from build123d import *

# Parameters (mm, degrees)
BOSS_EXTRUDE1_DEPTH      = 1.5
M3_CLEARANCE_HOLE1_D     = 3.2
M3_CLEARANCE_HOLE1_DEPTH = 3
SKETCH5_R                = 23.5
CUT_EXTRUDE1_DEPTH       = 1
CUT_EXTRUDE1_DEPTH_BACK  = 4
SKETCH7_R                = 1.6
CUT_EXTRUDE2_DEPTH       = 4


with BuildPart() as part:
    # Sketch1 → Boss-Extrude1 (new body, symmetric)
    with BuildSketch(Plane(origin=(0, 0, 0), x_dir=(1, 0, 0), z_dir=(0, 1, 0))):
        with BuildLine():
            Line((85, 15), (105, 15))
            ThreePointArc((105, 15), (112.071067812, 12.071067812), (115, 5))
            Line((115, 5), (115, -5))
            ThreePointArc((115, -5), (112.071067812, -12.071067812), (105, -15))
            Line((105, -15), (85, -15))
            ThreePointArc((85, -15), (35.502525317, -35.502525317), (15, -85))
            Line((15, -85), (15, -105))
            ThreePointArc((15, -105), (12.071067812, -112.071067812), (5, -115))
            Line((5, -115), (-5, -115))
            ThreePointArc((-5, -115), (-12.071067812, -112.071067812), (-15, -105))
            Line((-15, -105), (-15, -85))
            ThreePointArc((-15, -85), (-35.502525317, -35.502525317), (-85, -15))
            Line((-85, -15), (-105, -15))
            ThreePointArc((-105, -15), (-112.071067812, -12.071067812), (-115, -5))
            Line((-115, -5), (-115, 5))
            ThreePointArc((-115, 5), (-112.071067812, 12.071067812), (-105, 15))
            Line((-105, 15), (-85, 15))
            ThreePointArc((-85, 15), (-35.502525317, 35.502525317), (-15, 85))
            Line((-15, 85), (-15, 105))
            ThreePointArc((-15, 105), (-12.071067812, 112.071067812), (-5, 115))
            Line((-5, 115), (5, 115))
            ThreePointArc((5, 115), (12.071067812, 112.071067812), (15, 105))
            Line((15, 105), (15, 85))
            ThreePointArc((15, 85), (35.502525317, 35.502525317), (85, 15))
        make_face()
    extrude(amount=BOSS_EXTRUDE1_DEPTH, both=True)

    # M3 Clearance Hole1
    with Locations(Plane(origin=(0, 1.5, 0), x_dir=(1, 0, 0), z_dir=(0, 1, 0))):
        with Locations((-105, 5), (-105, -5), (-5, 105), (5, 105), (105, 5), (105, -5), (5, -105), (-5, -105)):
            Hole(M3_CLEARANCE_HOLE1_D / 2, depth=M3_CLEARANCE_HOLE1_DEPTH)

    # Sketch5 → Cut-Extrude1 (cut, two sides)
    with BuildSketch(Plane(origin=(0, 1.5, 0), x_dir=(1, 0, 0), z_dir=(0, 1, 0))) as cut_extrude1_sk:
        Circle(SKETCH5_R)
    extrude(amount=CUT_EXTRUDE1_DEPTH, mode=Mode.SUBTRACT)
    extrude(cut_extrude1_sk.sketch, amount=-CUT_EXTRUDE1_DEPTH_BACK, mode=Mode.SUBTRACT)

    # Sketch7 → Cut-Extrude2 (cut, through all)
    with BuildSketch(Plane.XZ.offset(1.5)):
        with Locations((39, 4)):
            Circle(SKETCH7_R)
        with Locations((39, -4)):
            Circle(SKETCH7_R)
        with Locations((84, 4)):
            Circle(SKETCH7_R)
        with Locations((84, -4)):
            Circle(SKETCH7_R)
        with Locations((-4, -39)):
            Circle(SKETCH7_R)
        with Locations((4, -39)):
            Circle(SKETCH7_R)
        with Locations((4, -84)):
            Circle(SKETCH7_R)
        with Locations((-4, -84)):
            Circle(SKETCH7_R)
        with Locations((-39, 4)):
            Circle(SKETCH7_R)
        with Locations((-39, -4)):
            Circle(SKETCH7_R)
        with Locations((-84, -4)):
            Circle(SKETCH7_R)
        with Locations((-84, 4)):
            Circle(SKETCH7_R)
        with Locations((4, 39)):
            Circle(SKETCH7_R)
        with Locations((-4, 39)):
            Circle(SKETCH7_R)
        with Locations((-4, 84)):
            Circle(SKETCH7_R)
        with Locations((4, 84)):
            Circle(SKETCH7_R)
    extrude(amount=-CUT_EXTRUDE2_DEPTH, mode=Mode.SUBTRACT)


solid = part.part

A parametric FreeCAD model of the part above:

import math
import FreeCAD as App
import Part
import Sketcher
Q = App.Units.Quantity

doc = App.newDocument("Part")
params = doc.addObject("Spreadsheet::Sheet", "Params")
for row, (alias, value) in enumerate([
    ("sketch1_radius", "70 mm"),
    ("sketch1_radius2", "10 mm"),
    ("sketch1_width", "20 mm"),
    ("sketch1_width2", "10 mm"),
    ("pad1_length", "3 mm"),
    ("sketch2_diameter", "3.2 mm"),
    ("hole_diameter", "3.2 mm"),
    ("hole_depth", "3 mm"),
    ("sketch3_diameter", "47 mm"),
    ("sketch4_diameter", "3.2 mm"),
], start=1):
    params.set(f"A{row}", alias)
    params.set(f"B{row}", "=" + value)
    params.setAlias(f"B{row}", alias)

body = doc.addObject("PartDesign::Body", "Body")

# Sketch on XZ plane
sketch1 = body.newObject("Sketcher::SketchObject", "Sketch")
sketch1.AttachmentSupport = (doc.getObject("XZ_Plane"), [""])
sketch1.MapMode = "FlatFace"
sketch1.addGeometry([
    Part.LineSegment(App.Vector(105, -15, 0), App.Vector(85, -15, 0)),  # 0
    Part.ArcOfCircle(Part.Circle(App.Vector(85, -85, 0), App.Vector(0, 0, 1), 70), math.radians(90), math.radians(180)),  # 1
    Part.LineSegment(App.Vector(15, -85, 0), App.Vector(15, -105, 0)),  # 2
    Part.ArcOfCircle(Part.Circle(App.Vector(5, -105, 0), App.Vector(0, 0, 1), 10), math.radians(-90), math.radians(0)),  # 3
    Part.LineSegment(App.Vector(5, -115, 0), App.Vector(-5, -115, 0)),  # 4
    Part.ArcOfCircle(Part.Circle(App.Vector(-5, -105, 0), App.Vector(0, 0, 1), 10), math.radians(180), math.radians(270)),  # 5
    Part.LineSegment(App.Vector(-15, -105, 0), App.Vector(-15, -85, 0)),  # 6
    Part.ArcOfCircle(Part.Circle(App.Vector(-85, -85, 0), App.Vector(0, 0, 1), 70), math.radians(0), math.radians(90)),  # 7
    Part.LineSegment(App.Vector(-85, -15, 0), App.Vector(-105, -15, 0)),  # 8
    Part.ArcOfCircle(Part.Circle(App.Vector(-105, -5, 0), App.Vector(0, 0, 1), 10), math.radians(180), math.radians(270)),  # 9
    Part.LineSegment(App.Vector(-115, -5, 0), App.Vector(-115, 5, 0)),  # 10
    Part.ArcOfCircle(Part.Circle(App.Vector(-105, 5, 0), App.Vector(0, 0, 1), 10), math.radians(90), math.radians(180)),  # 11
    Part.LineSegment(App.Vector(-105, 15, 0), App.Vector(-85, 15, 0)),  # 12
    Part.ArcOfCircle(Part.Circle(App.Vector(-85, 85, 0), App.Vector(0, 0, 1), 70), math.radians(-90), math.radians(0)),  # 13
    Part.LineSegment(App.Vector(-15, 85, 0), App.Vector(-15, 105, 0)),  # 14
    Part.ArcOfCircle(Part.Circle(App.Vector(-5, 105, 0), App.Vector(0, 0, 1), 10), math.radians(90), math.radians(180)),  # 15
    Part.LineSegment(App.Vector(-5, 115, 0), App.Vector(5, 115, 0)),  # 16
    Part.ArcOfCircle(Part.Circle(App.Vector(5, 105, 0), App.Vector(0, 0, 1), 10), math.radians(0), math.radians(90)),  # 17
    Part.LineSegment(App.Vector(15, 105, 0), App.Vector(15, 85, 0)),  # 18
    Part.ArcOfCircle(Part.Circle(App.Vector(85, 85, 0), App.Vector(0, 0, 1), 70), math.radians(180), math.radians(270)),  # 19
    Part.LineSegment(App.Vector(85, 15, 0), App.Vector(105, 15, 0)),  # 20
    Part.ArcOfCircle(Part.Circle(App.Vector(105, 5, 0), App.Vector(0, 0, 1), 10), math.radians(0), math.radians(90)),  # 21
    Part.LineSegment(App.Vector(115, 5, 0), App.Vector(115, -5, 0)),  # 22
    Part.ArcOfCircle(Part.Circle(App.Vector(105, -5, 0), App.Vector(0, 0, 1), 10), math.radians(-90), math.radians(0)),  # 23
], False)
sketch1.addConstraint([
    Sketcher.Constraint("Tangent", 0, 2, 1, 1),
    Sketcher.Constraint("Tangent", 1, 2, 2, 1),
    Sketcher.Constraint("Tangent", 2, 2, 3, 2),
    Sketcher.Constraint("Tangent", 3, 1, 4, 1),
    Sketcher.Constraint("Tangent", 4, 2, 5, 2),
    Sketcher.Constraint("Tangent", 5, 1, 6, 1),
    Sketcher.Constraint("Tangent", 6, 2, 7, 1),
    Sketcher.Constraint("Tangent", 7, 2, 8, 1),
    Sketcher.Constraint("Tangent", 8, 2, 9, 2),
    Sketcher.Constraint("Tangent", 9, 1, 10, 1),
    Sketcher.Constraint("Tangent", 10, 2, 11, 2),
    Sketcher.Constraint("Tangent", 11, 1, 12, 1),
    Sketcher.Constraint("Tangent", 12, 2, 13, 1),
    Sketcher.Constraint("Tangent", 13, 2, 14, 1),
    Sketcher.Constraint("Tangent", 14, 2, 15, 2),
    Sketcher.Constraint("Tangent", 15, 1, 16, 1),
    Sketcher.Constraint("Tangent", 16, 2, 17, 2),
    Sketcher.Constraint("Tangent", 17, 1, 18, 1),
    Sketcher.Constraint("Tangent", 18, 2, 19, 1),
    Sketcher.Constraint("Tangent", 19, 2, 20, 1),
    Sketcher.Constraint("Tangent", 20, 2, 21, 2),
    Sketcher.Constraint("Tangent", 21, 1, 22, 1),
    Sketcher.Constraint("Tangent", 22, 2, 23, 2),
    Sketcher.Constraint("Tangent", 23, 1, 0, 1),
    Sketcher.Constraint("Horizontal", 0),
    Sketcher.Constraint("Vertical", 2),
    Sketcher.Constraint("Horizontal", 4),
    Sketcher.Constraint("Vertical", 6),
    Sketcher.Constraint("Horizontal", 8),
    Sketcher.Constraint("Vertical", 10),
    Sketcher.Constraint("Horizontal", 12),
    Sketcher.Constraint("Vertical", 14),
    Sketcher.Constraint("Horizontal", 16),
    Sketcher.Constraint("Vertical", 18),
    Sketcher.Constraint("Horizontal", 20),
    Sketcher.Constraint("Vertical", 22),
    Sketcher.Constraint("Equal", 3, 5),
    Sketcher.Constraint("Equal", 1, 7),
    Sketcher.Constraint("Equal", 5, 9),
    Sketcher.Constraint("Equal", 9, 11),
    Sketcher.Constraint("Equal", 7, 13),
    Sketcher.Constraint("Equal", 11, 15),
    Sketcher.Constraint("Equal", 15, 17),
    Sketcher.Constraint("Equal", 13, 19),
    Sketcher.Constraint("Equal", 17, 21),
    Sketcher.Constraint("Equal", 21, 23),
    Sketcher.Constraint("Symmetric", 1, 3, 13, 3, -1, 1),
    Sketcher.Constraint("Symmetric", 5, 3, 17, 3, -1, 1),
    Sketcher.Constraint("Symmetric", 9, 3, 21, 3, -1, 1),
    Sketcher.Constraint("Symmetric", 1, 3, 7, 3, -2),
    Sketcher.Constraint("Equal", 20, 2),
    Sketcher.Constraint("Equal", 16, 10),
    Sketcher.Constraint("Radius", 1, Q("70 mm")),
    Sketcher.Constraint("Radius", 3, Q("10 mm")),
    Sketcher.Constraint("DistanceX", 0, 2, 0, 1, Q("20 mm")),
    Sketcher.Constraint("DistanceX", 4, 2, 4, 1, Q("10 mm")),
])
sketch1.setExpression("Constraints[52]", "Params.sketch1_radius")
sketch1.setExpression("Constraints[53]", "Params.sketch1_radius2")
sketch1.setExpression("Constraints[54]", "Params.sketch1_width")
sketch1.setExpression("Constraints[55]", "Params.sketch1_width2")
pad1 = body.newObject("PartDesign::Pad", "Pad")
pad1.Profile = sketch1
pad1.setExpression("Length", "Params.pad1_length")
pad1.Midplane = True

# Sketch on XZ plane
sketch2 = body.newObject("Sketcher::SketchObject", "Sketch001")
sketch2.AttachmentSupport = (doc.getObject("XZ_Plane"), [""])
sketch2.MapMode = "FlatFace"
sketch2.AttachmentOffset = App.Placement(App.Vector(0, 0, -1.5), App.Rotation())
sketch2.addGeometry([
    Part.Circle(App.Vector(-105, -5, 0), App.Vector(0, 0, 1), 1.6),  # 0
    Part.Circle(App.Vector(-105, 5, 0), App.Vector(0, 0, 1), 1.6),  # 1
    Part.Circle(App.Vector(-5, -105, 0), App.Vector(0, 0, 1), 1.6),  # 2
    Part.Circle(App.Vector(5, -105, 0), App.Vector(0, 0, 1), 1.6),  # 3
    Part.Circle(App.Vector(105, -5, 0), App.Vector(0, 0, 1), 1.6),  # 4
    Part.Circle(App.Vector(105, 5, 0), App.Vector(0, 0, 1), 1.6),  # 5
    Part.Circle(App.Vector(5, 105, 0), App.Vector(0, 0, 1), 1.6),  # 6
    Part.Circle(App.Vector(-5, 105, 0), App.Vector(0, 0, 1), 1.6),  # 7
], False)
sketch2.addConstraint([
    Sketcher.Constraint("Equal", 0, 1),
    Sketcher.Constraint("Equal", 1, 2),
    Sketcher.Constraint("Equal", 2, 3),
    Sketcher.Constraint("Equal", 3, 4),
    Sketcher.Constraint("Equal", 4, 5),
    Sketcher.Constraint("Equal", 5, 6),
    Sketcher.Constraint("Equal", 6, 7),
    Sketcher.Constraint("Symmetric", 1, 3, 4, 3, -1, 1),
    Sketcher.Constraint("Symmetric", 0, 3, 5, 3, -1, 1),
    Sketcher.Constraint("Symmetric", 2, 3, 6, 3, -1, 1),
    Sketcher.Constraint("Symmetric", 3, 3, 7, 3, -1, 1),
    Sketcher.Constraint("Symmetric", 2, 3, 3, 3, -2),
    Sketcher.Constraint("Symmetric", 0, 3, 4, 3, -2),
    Sketcher.Constraint("Diameter", 0, Q("3.2 mm")),
    Sketcher.Constraint("DistanceX", 0, 3, -1, 1, Q("105 mm")),
    Sketcher.Constraint("DistanceY", 0, 3, -1, 1, Q("5 mm")),
    Sketcher.Constraint("DistanceX", 2, 3, -1, 1, Q("5 mm")),
    Sketcher.Constraint("DistanceY", 2, 3, -1, 1, Q("105 mm")),
])
sketch2.setExpression("Constraints[13]", "Params.sketch2_diameter")
doc.recompute()
hole = body.newObject("PartDesign::Hole", "Hole")
hole.Profile = sketch2
hole.ThreadType = "None"
hole.setExpression("Diameter", "Params.hole_diameter")
hole.DepthType = "Dimension"
hole.setExpression("Depth", "Params.hole_depth")
hole.DrillPoint = "Flat"
hole.Reversed = True

# Sketch on XZ plane
sketch3 = body.newObject("Sketcher::SketchObject", "Sketch002")
sketch3.AttachmentSupport = (doc.getObject("XZ_Plane"), [""])
sketch3.MapMode = "FlatFace"
sketch3.AttachmentOffset = App.Placement(App.Vector(0, 0, -1.5), App.Rotation())
sketch3.addGeometry(Part.Circle(App.Vector(0, 0, 0), App.Vector(0, 0, 1), 24), False)
sketch3.addConstraint([
    Sketcher.Constraint("Coincident", 0, 3, -1, 1),
    Sketcher.Constraint("Diameter", 0, Q("47 mm")),
])
sketch3.setExpression("Constraints[1]", "Params.sketch3_diameter")
pocket1 = body.newObject("PartDesign::Pocket", "Pocket")
pocket1.Profile = sketch3
pocket1.Type = "ThroughAll"
pocket1.Midplane = True

# Sketch on XZ plane
sketch4 = body.newObject("Sketcher::SketchObject", "Sketch003")
sketch4.AttachmentSupport = (doc.getObject("XZ_Plane"), [""])
sketch4.MapMode = "FlatFace"
sketch4.AttachmentOffset = App.Placement(App.Vector(0, 0, 1.5), App.Rotation())
sketch4.addGeometry([
    Part.Circle(App.Vector(39, 4, 0), App.Vector(0, 0, 1), 1.6),  # 0
    Part.Circle(App.Vector(39, -4, 0), App.Vector(0, 0, 1), 1.6),  # 1
    Part.Circle(App.Vector(84, 4, 0), App.Vector(0, 0, 1), 1.6),  # 2
    Part.Circle(App.Vector(84, -4, 0), App.Vector(0, 0, 1), 1.6),  # 3
    Part.Circle(App.Vector(-4, -39, 0), App.Vector(0, 0, 1), 1.6),  # 4
    Part.Circle(App.Vector(4, -39, 0), App.Vector(0, 0, 1), 1.6),  # 5
    Part.Circle(App.Vector(4, -84, 0), App.Vector(0, 0, 1), 1.6),  # 6
    Part.Circle(App.Vector(-4, -84, 0), App.Vector(0, 0, 1), 1.6),  # 7
    Part.Circle(App.Vector(-39, 4, 0), App.Vector(0, 0, 1), 1.6),  # 8
    Part.Circle(App.Vector(-39, -4, 0), App.Vector(0, 0, 1), 1.6),  # 9
    Part.Circle(App.Vector(-84, -4, 0), App.Vector(0, 0, 1), 1.6),  # 10
    Part.Circle(App.Vector(-84, 4, 0), App.Vector(0, 0, 1), 1.6),  # 11
    Part.Circle(App.Vector(4, 39, 0), App.Vector(0, 0, 1), 1.6),  # 12
    Part.Circle(App.Vector(-4, 39, 0), App.Vector(0, 0, 1), 1.6),  # 13
    Part.Circle(App.Vector(-4, 84, 0), App.Vector(0, 0, 1), 1.6),  # 14
    Part.Circle(App.Vector(4, 84, 0), App.Vector(0, 0, 1), 1.6),  # 15
], False)
sketch4.addConstraint([
    Sketcher.Constraint("Equal", 0, 1),
    Sketcher.Constraint("Equal", 1, 2),
    Sketcher.Constraint("Equal", 2, 3),
    Sketcher.Constraint("Equal", 3, 4),
    Sketcher.Constraint("Equal", 4, 5),
    Sketcher.Constraint("Equal", 5, 6),
    Sketcher.Constraint("Equal", 6, 7),
    Sketcher.Constraint("Equal", 7, 8),
    Sketcher.Constraint("Equal", 8, 9),
    Sketcher.Constraint("Equal", 9, 10),
    Sketcher.Constraint("Equal", 10, 11),
    Sketcher.Constraint("Equal", 11, 12),
    Sketcher.Constraint("Equal", 12, 13),
    Sketcher.Constraint("Equal", 13, 14),
    Sketcher.Constraint("Equal", 14, 15),
    Sketcher.Constraint("Symmetric", 1, 3, 8, 3, -1, 1),
    Sketcher.Constraint("Symmetric", 0, 3, 9, 3, -1, 1),
    Sketcher.Constraint("Symmetric", 2, 3, 10, 3, -1, 1),
    Sketcher.Constraint("Symmetric", 3, 3, 11, 3, -1, 1),
    Sketcher.Constraint("Symmetric", 4, 3, 12, 3, -1, 1),
    Sketcher.Constraint("Symmetric", 5, 3, 13, 3, -1, 1),
    Sketcher.Constraint("Symmetric", 6, 3, 14, 3, -1, 1),
    Sketcher.Constraint("Symmetric", 7, 3, 15, 3, -1, 1),
    Sketcher.Constraint("Symmetric", 4, 3, 5, 3, -2),
    Sketcher.Constraint("Symmetric", 6, 3, 7, 3, -2),
    Sketcher.Constraint("Symmetric", 0, 3, 8, 3, -2),
    Sketcher.Constraint("Symmetric", 3, 3, 10, 3, -2),
    Sketcher.Constraint("Horizontal", 0, 3, 2, 3),
    Sketcher.Constraint("Vertical", 5, 3, 6, 3),
    Sketcher.Constraint("Diameter", 0, Q("3.2 mm")),
    Sketcher.Constraint("DistanceX", -1, 1, 0, 3, Q("39 mm")),
    Sketcher.Constraint("DistanceY", -1, 1, 0, 3, Q("4 mm")),
    Sketcher.Constraint("DistanceX", -1, 1, 2, 3, Q("84 mm")),
    Sketcher.Constraint("DistanceX", 4, 3, -1, 1, Q("4 mm")),
    Sketcher.Constraint("DistanceY", 4, 3, -1, 1, Q("39 mm")),
    Sketcher.Constraint("DistanceY", 6, 3, -1, 1, Q("84 mm")),
])
sketch4.setExpression("Constraints[29]", "Params.sketch4_diameter")
pocket2 = body.newObject("PartDesign::Pocket", "Pocket001")
pocket2.Profile = sketch4
pocket2.Type = "ThroughAll"

doc.recompute()
